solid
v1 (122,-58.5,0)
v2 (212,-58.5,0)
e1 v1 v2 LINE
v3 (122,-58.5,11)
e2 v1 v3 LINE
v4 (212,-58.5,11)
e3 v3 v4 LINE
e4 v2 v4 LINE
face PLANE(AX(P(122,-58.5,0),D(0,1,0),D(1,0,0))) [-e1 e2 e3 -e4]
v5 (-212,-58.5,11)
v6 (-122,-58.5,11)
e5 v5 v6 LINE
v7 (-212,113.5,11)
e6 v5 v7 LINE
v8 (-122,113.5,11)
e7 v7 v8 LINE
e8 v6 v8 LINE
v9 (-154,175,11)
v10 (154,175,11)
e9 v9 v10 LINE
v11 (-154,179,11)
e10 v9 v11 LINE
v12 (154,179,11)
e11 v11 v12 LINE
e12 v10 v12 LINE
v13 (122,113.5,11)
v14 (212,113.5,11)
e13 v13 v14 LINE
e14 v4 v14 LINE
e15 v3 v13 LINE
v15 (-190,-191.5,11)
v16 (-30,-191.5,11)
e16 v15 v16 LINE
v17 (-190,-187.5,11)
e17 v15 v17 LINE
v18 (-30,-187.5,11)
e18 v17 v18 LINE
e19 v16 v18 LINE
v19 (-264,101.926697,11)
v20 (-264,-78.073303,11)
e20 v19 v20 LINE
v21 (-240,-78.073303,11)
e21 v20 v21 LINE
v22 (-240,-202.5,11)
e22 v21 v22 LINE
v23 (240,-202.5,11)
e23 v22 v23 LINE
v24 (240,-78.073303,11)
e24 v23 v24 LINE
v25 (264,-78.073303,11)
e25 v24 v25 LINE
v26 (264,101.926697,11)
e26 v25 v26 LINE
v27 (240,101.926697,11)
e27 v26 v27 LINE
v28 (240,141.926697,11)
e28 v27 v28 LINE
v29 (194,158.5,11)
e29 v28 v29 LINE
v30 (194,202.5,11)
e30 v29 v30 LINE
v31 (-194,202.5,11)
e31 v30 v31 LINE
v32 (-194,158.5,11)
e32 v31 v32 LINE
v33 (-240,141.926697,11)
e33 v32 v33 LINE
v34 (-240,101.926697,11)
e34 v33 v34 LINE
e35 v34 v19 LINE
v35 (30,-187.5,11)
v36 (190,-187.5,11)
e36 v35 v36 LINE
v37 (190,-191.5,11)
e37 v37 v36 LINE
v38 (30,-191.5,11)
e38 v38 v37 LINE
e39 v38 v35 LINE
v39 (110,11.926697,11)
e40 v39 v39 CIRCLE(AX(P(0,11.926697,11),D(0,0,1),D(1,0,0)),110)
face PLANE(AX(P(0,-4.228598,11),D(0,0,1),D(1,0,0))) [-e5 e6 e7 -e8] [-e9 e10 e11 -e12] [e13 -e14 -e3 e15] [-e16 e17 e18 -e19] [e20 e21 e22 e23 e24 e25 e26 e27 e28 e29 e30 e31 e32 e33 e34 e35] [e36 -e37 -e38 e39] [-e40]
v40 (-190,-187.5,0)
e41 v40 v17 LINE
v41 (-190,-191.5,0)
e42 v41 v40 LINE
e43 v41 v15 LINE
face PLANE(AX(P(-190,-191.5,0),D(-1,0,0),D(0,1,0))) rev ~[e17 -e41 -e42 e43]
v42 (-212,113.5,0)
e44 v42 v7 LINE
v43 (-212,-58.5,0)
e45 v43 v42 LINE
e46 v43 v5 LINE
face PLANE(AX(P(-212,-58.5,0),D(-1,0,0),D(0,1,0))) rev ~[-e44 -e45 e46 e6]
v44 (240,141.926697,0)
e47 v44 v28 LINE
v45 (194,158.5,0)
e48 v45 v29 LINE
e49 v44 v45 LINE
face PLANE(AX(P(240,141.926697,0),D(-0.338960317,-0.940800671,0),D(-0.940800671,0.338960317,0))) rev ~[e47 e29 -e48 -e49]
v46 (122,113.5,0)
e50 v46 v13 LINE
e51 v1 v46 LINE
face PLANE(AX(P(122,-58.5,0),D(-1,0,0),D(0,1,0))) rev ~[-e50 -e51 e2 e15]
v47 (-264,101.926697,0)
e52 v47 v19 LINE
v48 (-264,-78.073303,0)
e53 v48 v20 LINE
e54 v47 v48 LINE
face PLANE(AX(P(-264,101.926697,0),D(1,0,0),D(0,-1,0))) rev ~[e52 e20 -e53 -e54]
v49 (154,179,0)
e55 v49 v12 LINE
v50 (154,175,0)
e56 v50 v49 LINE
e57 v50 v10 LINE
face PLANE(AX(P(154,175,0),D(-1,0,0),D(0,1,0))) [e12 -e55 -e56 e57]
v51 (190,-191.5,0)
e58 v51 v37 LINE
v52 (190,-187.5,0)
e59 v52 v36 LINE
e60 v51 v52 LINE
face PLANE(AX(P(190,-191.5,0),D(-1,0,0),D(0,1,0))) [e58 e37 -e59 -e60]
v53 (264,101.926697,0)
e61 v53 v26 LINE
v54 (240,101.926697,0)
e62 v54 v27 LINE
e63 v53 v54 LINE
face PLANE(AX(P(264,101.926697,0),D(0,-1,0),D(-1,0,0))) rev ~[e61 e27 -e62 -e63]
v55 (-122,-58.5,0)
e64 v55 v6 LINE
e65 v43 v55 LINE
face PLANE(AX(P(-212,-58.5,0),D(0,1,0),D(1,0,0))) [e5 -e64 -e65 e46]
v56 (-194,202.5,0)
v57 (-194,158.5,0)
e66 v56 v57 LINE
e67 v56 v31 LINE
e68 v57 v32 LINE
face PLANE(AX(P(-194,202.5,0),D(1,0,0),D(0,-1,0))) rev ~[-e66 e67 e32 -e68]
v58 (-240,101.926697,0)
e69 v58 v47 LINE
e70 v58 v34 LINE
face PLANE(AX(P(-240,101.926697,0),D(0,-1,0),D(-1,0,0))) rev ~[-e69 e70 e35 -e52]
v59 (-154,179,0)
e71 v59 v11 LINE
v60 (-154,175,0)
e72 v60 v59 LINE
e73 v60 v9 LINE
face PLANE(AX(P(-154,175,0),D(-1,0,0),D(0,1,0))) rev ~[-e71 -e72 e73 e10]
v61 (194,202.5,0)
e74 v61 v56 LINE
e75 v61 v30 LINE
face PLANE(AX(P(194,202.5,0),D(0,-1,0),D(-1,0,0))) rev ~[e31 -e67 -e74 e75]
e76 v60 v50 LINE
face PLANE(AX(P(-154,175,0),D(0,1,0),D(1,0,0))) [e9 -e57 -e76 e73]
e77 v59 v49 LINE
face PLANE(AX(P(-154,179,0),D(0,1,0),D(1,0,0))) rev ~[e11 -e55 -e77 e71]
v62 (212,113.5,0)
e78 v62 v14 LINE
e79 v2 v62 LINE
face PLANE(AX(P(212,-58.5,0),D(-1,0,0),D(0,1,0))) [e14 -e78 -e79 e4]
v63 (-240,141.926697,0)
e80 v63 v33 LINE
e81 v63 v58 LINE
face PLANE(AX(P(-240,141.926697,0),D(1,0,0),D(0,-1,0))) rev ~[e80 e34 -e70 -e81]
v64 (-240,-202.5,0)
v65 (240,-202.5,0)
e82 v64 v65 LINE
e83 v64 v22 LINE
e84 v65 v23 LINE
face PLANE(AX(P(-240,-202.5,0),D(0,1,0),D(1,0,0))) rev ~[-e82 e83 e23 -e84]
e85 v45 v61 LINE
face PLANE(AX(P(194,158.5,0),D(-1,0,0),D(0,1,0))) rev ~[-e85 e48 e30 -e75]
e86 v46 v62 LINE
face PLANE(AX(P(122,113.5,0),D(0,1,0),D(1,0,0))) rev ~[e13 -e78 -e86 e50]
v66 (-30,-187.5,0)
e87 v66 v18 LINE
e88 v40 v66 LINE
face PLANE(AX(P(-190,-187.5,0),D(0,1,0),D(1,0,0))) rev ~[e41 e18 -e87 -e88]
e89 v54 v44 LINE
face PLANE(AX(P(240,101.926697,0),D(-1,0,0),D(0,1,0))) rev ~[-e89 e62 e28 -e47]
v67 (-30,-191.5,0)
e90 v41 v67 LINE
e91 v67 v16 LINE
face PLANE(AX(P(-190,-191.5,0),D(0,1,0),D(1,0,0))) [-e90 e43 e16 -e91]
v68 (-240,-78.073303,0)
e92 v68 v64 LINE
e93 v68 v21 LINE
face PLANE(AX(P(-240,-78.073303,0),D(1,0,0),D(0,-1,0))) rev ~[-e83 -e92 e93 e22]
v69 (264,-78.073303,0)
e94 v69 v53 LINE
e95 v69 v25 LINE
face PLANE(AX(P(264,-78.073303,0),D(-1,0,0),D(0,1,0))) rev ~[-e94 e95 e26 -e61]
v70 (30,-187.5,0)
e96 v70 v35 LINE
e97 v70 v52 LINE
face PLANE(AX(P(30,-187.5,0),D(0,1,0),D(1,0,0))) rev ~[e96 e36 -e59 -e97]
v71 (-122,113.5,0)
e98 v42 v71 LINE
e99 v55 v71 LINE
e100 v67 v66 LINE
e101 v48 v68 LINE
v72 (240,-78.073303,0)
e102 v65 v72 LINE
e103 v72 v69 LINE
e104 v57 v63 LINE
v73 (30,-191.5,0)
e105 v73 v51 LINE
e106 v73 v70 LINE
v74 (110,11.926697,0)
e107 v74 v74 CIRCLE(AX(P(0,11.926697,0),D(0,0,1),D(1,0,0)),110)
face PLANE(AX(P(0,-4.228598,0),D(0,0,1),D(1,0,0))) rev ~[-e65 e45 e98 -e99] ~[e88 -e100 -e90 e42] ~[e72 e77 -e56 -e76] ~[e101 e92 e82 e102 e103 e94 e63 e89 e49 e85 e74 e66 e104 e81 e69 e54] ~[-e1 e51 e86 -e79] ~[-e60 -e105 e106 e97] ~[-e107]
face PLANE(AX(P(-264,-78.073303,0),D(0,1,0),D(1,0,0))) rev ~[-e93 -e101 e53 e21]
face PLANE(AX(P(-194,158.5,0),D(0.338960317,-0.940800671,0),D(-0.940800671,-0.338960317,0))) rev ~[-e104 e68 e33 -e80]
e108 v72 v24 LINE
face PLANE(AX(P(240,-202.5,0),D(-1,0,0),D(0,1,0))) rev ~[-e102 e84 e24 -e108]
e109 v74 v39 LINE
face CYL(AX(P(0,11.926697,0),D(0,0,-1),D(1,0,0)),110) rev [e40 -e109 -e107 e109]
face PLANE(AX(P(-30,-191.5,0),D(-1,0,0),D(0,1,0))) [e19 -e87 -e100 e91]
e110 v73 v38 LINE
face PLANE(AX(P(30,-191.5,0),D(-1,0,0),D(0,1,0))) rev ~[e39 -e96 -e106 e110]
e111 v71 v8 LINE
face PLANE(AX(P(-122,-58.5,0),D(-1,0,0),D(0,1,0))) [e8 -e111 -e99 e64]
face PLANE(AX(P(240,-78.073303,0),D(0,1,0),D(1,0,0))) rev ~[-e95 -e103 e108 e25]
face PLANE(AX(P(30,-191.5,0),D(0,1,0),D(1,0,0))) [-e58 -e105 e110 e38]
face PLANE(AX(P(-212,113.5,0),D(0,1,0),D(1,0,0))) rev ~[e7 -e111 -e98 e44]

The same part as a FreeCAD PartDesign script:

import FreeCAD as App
import Part
import Sketcher

V = App.Vector


def add_polygon(sketch, points):
    """Adds a closed chain of lines whose ends are joined by coincident constraints."""
    first, n = sketch.GeometryCount, len(points)
    for a, b in zip(points, points[1:] + points[:1]):
        sketch.addGeometry(Part.LineSegment(App.Vector(*a, 0), App.Vector(*b, 0)), False)
    for i in range(n):
        sketch.addConstraint(Sketcher.Constraint("Coincident", first + i, 2, first + (i + 1) % n, 1))

doc = App.newDocument("Part")
body = doc.addObject("PartDesign::Body", "Body")

sketch1 = body.newObject("Sketcher::SketchObject", "Sketch")
sketch1.AttachmentSupport = (doc.getObject("XY_Plane"), [""])
sketch1.MapMode = "FlatFace"
add_polygon(sketch1, [(-194, 202.5), (-194, 158.5), (-240, 141.9), (-240, 101.9), (-264, 101.9), (-264, -78.1), (-240, -78.1), (-240, -202.5), (240, -202.5), (240, -78.1), (264, -78.1), (264, 101.9), (240, 101.9), (240, 141.9), (194, 158.5), (194, 202.5)])
add_polygon(sketch1, [(-30, -191.5), (-190, -191.5), (-190, -187.5), (-30, -187.5)])
add_polygon(sketch1, [(190, -191.5), (30, -191.5), (30, -187.5), (190, -187.5)])
add_polygon(sketch1, [(-122, -58.5), (-212, -58.5), (-212, 113.5), (-122, 113.5)])
sketch1.addGeometry(Part.Circle(V(0, 11.9, 0), V(0, 0, 1), 110), False)
add_polygon(sketch1, [(212, -58.5), (122, -58.5), (122, 113.5), (212, 113.5)])
add_polygon(sketch1, [(154, 175), (-154, 175), (-154, 179), (154, 179)])
sketch1.addConstraint([
    Sketcher.Constraint("Vertical", 0),
    Sketcher.Constraint("Vertical", 2),
    Sketcher.Constraint("Horizontal", 3),
    Sketcher.Constraint("Vertical", 4),
    Sketcher.Constraint("Horizontal", 5),
    Sketcher.Constraint("Vertical", 6),
    Sketcher.Constraint("Horizontal", 7),
    Sketcher.Constraint("Vertical", 8),
    Sketcher.Constraint("Horizontal", 9),
    Sketcher.Constraint("Vertical", 10),
    Sketcher.Constraint("Horizontal", 11),
    Sketcher.Constraint("Vertical", 12),
    Sketcher.Constraint("Vertical", 14),
    Sketcher.Constraint("Horizontal", 15),
    Sketcher.Constraint("Horizontal", 16),
    Sketcher.Constraint("Vertical", 17),
    Sketcher.Constraint("Horizontal", 18),
    Sketcher.Constraint("Vertical", 19),
    Sketcher.Constraint("Horizontal", 20),
    Sketcher.Constraint("Vertical", 21),
    Sketcher.Constraint("Horizontal", 22),
    Sketcher.Constraint("Vertical", 23),
    Sketcher.Constraint("Horizontal", 24),
    Sketcher.Constraint("Vertical", 25),
    Sketcher.Constraint("Horizontal", 26),
    Sketcher.Constraint("Vertical", 27),
    Sketcher.Constraint("Horizontal", 29),
    Sketcher.Constraint("Vertical", 30),
    Sketcher.Constraint("Horizontal", 31),
    Sketcher.Constraint("Vertical", 32),
    Sketcher.Constraint("Horizontal", 33),
    Sketcher.Constraint("Vertical", 34),
    Sketcher.Constraint("Horizontal", 35),
    Sketcher.Constraint("Vertical", 36),
    Sketcher.Constraint("Symmetric", 5, 2, 8, 2, -2),
    Sketcher.Constraint("Symmetric", 3, 2, 10, 2, -2),
    Sketcher.Constraint("Symmetric", 1, 2, 12, 2, -2),
    Sketcher.Constraint("Symmetric", 0, 2, 13, 2, -2),
    Sketcher.Constraint("Symmetric", 19, 2, 20, 2, -2),
    Sketcher.Constraint("Symmetric", 17, 2, 22, 2, -2),
    Sketcher.Constraint("Symmetric", 27, 2, 29, 2, -2),
    Sketcher.Constraint("Symmetric", 25, 2, 31, 2, -2),
    Sketcher.Constraint("PointOnObject", 28, 3, -2),
    Sketcher.Constraint("Vertical", 2, 2, 5, 2),
    Sketcher.Constraint("Equal", 23, 34),
    Sketcher.Constraint("Diameter", 28, 220.0),
    Sketcher.Constraint("DistanceX", 3, 2, 3, 1, 24.0),
    Sketcher.Constraint("DistanceX", 7, 1, 7, 2, 480.0),
    Sketcher.Constraint("DistanceX", 15, 2, 15, 1, 388.0),
    Sketcher.Constraint("DistanceX", 16, 2, 16, 1, 160.0),
    Sketcher.Constraint("DistanceX", 24, 2, 24, 1, 90.0),
    Sketcher.Constraint("DistanceX", 33, 2, 33, 1, 308.0),
    Sketcher.Constraint("DistanceY", 0, 2, 0, 1, 44.0),
    Sketcher.Constraint("DistanceY", 2, 2, 2, 1, 40.0),
    Sketcher.Constraint("DistanceY", 4, 2, 4, 1, 180.0),
    Sketcher.Constraint("DistanceY", 17, 1, 17, 2, 4.0),
    Sketcher.Constraint("DistanceY", 25, 1, 25, 2, 172.0),
    Sketcher.Constraint("DistanceX", 16, 2, -1, 1, 190.0),
    Sketcher.Constraint("DistanceX", 24, 2, -1, 1, 212.0),
    Sketcher.Constraint("DistanceX", 33, 2, -1, 1, 154.0),
    Sketcher.Constraint("DistanceY", -1, 1, 33, 2, 175.0),
    Sketcher.Constraint("DistanceY", 28, 3, 1, 2, 130.0),
    Sketcher.Constraint("DistanceY", 7, 2, 0, 2, 361.0),
    Sketcher.Constraint("DistanceY", 6, 2, 16, 2, 11.0),
    Sketcher.Constraint("DistanceY", 17, 2, 24, 2, 129.0),
    Sketcher.Constraint("DistanceY", -1, 1, 0, 2, 158.5),
    Sketcher.Constraint("DistanceY", 6, 2, 6, 1, 124.426697),
])
pad1 = body.newObject("PartDesign::Pad", "Pad")
pad1.Profile = sketch1
pad1.Length = 11

doc.recompute()
